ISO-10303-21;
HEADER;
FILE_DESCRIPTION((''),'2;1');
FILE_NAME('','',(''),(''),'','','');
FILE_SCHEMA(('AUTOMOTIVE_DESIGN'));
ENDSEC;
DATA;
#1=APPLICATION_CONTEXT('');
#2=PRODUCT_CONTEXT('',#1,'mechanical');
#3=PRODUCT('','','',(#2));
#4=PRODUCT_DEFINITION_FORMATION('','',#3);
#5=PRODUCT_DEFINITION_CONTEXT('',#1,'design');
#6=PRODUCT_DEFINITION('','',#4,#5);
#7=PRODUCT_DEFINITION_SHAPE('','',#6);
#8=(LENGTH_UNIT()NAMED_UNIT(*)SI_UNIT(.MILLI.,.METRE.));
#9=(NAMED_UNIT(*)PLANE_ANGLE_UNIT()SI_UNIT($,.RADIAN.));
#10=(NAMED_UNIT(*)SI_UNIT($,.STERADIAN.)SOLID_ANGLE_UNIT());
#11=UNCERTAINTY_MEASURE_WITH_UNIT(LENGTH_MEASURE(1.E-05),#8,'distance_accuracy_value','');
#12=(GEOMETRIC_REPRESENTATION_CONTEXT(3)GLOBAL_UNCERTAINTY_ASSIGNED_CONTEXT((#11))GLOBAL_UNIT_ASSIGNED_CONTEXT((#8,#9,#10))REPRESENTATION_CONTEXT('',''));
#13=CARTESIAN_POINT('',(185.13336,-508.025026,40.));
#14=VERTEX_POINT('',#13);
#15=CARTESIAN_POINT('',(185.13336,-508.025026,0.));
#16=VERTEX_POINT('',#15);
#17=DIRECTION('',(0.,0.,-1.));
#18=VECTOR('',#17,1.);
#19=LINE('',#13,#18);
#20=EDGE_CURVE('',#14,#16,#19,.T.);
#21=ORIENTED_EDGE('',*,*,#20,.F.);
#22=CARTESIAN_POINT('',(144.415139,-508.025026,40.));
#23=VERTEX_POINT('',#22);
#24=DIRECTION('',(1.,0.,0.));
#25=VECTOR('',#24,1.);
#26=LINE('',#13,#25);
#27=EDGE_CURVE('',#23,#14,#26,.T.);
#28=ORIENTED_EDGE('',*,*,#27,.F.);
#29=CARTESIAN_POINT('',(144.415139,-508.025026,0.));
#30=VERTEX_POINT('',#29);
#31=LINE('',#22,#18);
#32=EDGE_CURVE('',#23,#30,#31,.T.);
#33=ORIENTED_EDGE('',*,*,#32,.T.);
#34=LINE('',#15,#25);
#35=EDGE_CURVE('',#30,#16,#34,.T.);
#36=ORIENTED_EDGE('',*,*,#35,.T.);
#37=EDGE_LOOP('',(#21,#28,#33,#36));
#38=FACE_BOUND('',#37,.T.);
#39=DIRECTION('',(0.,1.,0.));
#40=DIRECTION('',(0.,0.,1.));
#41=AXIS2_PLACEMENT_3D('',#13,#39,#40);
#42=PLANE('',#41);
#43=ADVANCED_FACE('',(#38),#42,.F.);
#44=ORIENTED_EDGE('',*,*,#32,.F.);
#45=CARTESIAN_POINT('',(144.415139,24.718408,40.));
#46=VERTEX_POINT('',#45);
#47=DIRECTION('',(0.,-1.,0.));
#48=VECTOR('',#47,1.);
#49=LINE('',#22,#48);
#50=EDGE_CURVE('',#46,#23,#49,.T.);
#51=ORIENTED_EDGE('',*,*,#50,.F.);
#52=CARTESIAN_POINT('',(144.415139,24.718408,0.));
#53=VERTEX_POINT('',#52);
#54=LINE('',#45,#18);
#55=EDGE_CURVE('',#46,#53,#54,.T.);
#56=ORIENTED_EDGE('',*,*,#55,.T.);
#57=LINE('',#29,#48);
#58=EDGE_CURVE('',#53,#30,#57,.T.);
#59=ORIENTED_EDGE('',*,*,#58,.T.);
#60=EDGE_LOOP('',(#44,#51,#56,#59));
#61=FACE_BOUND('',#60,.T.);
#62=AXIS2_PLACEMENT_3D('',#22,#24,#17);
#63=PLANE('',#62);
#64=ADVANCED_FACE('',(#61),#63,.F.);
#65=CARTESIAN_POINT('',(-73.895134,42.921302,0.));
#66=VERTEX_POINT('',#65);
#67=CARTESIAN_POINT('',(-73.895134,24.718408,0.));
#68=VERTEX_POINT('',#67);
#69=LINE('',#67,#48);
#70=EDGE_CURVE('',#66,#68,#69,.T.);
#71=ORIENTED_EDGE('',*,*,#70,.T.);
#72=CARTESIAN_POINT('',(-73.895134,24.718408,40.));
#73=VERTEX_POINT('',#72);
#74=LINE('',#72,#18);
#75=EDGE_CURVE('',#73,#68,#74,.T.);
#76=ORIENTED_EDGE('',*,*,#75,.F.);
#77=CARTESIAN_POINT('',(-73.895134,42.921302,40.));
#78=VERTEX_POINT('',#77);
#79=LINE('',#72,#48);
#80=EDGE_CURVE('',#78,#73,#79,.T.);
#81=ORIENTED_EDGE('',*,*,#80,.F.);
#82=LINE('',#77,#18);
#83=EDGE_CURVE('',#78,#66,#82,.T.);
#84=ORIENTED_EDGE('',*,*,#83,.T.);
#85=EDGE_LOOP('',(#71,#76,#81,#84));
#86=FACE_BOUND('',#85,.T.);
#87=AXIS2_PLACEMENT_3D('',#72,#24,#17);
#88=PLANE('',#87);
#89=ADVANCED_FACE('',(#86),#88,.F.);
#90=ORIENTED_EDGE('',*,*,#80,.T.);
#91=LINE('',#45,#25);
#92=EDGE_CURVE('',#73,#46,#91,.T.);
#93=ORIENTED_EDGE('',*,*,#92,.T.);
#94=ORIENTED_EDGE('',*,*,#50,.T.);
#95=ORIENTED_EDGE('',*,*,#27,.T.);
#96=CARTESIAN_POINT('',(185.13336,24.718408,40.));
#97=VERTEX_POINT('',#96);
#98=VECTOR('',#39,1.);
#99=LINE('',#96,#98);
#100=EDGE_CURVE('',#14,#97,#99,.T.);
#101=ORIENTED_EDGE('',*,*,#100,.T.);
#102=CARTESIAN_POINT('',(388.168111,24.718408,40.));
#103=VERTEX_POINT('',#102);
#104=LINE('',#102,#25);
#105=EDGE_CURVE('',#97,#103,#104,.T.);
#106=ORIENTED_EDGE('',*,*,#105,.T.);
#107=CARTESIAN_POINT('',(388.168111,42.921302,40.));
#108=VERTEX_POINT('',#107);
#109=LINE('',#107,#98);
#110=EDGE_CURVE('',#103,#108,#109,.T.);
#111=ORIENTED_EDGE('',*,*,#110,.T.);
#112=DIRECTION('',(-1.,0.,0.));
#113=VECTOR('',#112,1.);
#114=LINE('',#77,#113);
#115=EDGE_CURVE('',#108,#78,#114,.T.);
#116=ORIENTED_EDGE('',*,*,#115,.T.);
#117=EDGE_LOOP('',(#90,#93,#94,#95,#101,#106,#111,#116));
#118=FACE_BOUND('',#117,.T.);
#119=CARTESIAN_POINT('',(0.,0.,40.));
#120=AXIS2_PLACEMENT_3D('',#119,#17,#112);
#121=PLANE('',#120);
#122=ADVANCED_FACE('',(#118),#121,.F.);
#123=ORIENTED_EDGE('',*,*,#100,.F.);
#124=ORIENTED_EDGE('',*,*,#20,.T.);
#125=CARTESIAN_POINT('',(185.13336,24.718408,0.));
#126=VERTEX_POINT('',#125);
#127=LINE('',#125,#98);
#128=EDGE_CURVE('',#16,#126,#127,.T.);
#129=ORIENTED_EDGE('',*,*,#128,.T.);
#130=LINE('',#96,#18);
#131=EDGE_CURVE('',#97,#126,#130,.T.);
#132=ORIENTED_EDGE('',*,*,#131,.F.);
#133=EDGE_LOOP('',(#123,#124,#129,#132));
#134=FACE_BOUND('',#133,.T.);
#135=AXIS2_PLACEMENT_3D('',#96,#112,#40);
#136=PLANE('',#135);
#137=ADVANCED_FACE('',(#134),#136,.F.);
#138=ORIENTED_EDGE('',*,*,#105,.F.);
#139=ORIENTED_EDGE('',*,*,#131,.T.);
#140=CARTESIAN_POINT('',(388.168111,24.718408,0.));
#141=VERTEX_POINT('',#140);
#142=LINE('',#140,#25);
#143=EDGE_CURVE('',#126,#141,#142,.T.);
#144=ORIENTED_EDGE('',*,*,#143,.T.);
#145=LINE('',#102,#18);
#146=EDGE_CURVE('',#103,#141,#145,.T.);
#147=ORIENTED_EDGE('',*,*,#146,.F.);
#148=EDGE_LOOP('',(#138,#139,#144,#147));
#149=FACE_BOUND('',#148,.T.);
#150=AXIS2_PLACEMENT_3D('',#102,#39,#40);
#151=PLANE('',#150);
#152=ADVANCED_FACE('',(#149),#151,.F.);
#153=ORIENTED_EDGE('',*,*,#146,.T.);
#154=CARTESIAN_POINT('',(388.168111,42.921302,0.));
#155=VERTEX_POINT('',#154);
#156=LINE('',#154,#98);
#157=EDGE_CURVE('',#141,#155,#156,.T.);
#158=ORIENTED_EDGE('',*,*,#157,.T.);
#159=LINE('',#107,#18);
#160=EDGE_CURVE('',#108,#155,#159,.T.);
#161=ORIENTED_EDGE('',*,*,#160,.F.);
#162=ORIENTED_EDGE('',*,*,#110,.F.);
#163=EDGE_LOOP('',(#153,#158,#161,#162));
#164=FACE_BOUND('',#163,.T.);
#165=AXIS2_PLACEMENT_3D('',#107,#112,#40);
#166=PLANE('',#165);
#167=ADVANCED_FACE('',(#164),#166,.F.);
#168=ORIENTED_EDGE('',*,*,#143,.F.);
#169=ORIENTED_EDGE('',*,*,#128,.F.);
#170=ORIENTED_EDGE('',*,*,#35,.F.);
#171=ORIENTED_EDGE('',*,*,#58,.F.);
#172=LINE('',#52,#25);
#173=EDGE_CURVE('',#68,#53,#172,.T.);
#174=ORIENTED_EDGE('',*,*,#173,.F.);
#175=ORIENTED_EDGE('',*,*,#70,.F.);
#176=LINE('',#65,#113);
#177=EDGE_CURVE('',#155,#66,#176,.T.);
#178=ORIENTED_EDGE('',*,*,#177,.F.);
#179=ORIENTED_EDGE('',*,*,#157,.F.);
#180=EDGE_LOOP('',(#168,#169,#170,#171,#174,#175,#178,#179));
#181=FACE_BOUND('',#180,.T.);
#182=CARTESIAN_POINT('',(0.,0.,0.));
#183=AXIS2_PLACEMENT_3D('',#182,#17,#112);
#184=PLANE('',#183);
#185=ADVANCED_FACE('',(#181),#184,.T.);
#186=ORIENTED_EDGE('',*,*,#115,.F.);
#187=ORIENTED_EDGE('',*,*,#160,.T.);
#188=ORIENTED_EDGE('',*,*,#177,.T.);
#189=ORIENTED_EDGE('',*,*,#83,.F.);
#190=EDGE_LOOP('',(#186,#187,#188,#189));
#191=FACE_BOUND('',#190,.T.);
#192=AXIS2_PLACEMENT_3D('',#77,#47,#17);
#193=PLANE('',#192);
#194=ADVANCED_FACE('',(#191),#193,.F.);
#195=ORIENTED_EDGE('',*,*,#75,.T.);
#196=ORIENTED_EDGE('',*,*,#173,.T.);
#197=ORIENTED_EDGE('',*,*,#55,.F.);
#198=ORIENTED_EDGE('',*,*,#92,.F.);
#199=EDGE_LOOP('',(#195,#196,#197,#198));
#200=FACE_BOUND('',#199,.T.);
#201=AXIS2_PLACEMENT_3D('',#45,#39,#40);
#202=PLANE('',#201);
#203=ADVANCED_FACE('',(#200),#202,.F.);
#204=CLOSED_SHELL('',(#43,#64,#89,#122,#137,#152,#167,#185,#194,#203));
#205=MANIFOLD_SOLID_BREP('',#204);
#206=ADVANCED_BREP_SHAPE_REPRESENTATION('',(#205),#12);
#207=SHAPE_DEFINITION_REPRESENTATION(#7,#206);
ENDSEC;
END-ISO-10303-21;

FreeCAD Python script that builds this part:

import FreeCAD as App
import Part
import Sketcher
from FreeCAD import Vector
Q = App.Units.Quantity

doc = App.newDocument("Part")
body = doc.addObject("PartDesign::Body", "Body")

# Sketch on XY plane
sketch1 = body.newObject("Sketcher::SketchObject", "Sketch")
sketch1.AttachmentSupport = (doc.getObject("XY_Plane"), [""])
sketch1.MapMode = "FlatFace"
sketch1.addGeometry(Part.LineSegment(Vector(388, 43, 0), Vector(-74, 43, 0)), False)
sketch1.addGeometry(Part.LineSegment(Vector(-74, 43, 0), Vector(-74, 25, 0)), False)
sketch1.addGeometry(Part.LineSegment(Vector(-74, 25, 0), Vector(144, 25, 0)), False)
sketch1.addGeometry(Part.LineSegment(Vector(144, 25, 0), Vector(144, -508, 0)), False)
sketch1.addGeometry(Part.LineSegment(Vector(144, -508, 0), Vector(185, -508, 0)), False)
sketch1.addGeometry(Part.LineSegment(Vector(185, -508, 0), Vector(185, 25, 0)), False)
sketch1.addGeometry(Part.LineSegment(Vector(185, 25, 0), Vector(388, 25, 0)), False)
sketch1.addGeometry(Part.LineSegment(Vector(388, 25, 0), Vector(388, 43, 0)), False)
sketch1.addConstraint(Sketcher.Constraint("Coincident", 0, 2, 1, 1))
sketch1.addConstraint(Sketcher.Constraint("Coincident", 1, 2, 2, 1))
sketch1.addConstraint(Sketcher.Constraint("Coincident", 2, 2, 3, 1))
sketch1.addConstraint(Sketcher.Constraint("Coincident", 3, 2, 4, 1))
sketch1.addConstraint(Sketcher.Constraint("Coincident", 4, 2, 5, 1))
sketch1.addConstraint(Sketcher.Constraint("Coincident", 5, 2, 6, 1))
sketch1.addConstraint(Sketcher.Constraint("Coincident", 6, 2, 7, 1))
sketch1.addConstraint(Sketcher.Constraint("Coincident", 7, 2, 0, 1))
sketch1.addConstraint(Sketcher.Constraint("Horizontal", 0))
sketch1.addConstraint(Sketcher.Constraint("Vertical", 1))
sketch1.addConstraint(Sketcher.Constraint("Horizontal", 2))
sketch1.addConstraint(Sketcher.Constraint("Vertical", 3))
sketch1.addConstraint(Sketcher.Constraint("Horizontal", 4))
sketch1.addConstraint(Sketcher.Constraint("Vertical", 5))
sketch1.addConstraint(Sketcher.Constraint("Horizontal", 6))
sketch1.addConstraint(Sketcher.Constraint("Vertical", 7))
sketch1.addConstraint(Sketcher.Constraint("Horizontal", 2, 2, 5, 2))
sketch1.addConstraint(Sketcher.Constraint("DistanceX", 4, 1, 4, 2, Q("40.718221 mm")))
sketch1.addConstraint(Sketcher.Constraint("DistanceX", 6, 1, 6, 2, Q("203.034751 mm")))
sketch1.addConstraint(Sketcher.Constraint("DistanceY", -1, 1, 0, 2, Q("42.921302 mm")))
sketch1.addConstraint(Sketcher.Constraint("DistanceX", 0, 2, 0, 1, Q("462.063246 mm")))
sketch1.addConstraint(Sketcher.Constraint("DistanceY", 1, 2, 1, 1, Q("18.202893 mm")))
sketch1.addConstraint(Sketcher.Constraint("DistanceY", 3, 2, 3, 1, Q("532.743435 mm")))
sketch1.addConstraint(Sketcher.Constraint("DistanceX", -1, 1, 2, 2, Q("144.415139 mm")))
pad1 = body.newObject("PartDesign::Pad", "Pad")
pad1.Profile = sketch1
pad1.Length = 40

doc.recompute()
